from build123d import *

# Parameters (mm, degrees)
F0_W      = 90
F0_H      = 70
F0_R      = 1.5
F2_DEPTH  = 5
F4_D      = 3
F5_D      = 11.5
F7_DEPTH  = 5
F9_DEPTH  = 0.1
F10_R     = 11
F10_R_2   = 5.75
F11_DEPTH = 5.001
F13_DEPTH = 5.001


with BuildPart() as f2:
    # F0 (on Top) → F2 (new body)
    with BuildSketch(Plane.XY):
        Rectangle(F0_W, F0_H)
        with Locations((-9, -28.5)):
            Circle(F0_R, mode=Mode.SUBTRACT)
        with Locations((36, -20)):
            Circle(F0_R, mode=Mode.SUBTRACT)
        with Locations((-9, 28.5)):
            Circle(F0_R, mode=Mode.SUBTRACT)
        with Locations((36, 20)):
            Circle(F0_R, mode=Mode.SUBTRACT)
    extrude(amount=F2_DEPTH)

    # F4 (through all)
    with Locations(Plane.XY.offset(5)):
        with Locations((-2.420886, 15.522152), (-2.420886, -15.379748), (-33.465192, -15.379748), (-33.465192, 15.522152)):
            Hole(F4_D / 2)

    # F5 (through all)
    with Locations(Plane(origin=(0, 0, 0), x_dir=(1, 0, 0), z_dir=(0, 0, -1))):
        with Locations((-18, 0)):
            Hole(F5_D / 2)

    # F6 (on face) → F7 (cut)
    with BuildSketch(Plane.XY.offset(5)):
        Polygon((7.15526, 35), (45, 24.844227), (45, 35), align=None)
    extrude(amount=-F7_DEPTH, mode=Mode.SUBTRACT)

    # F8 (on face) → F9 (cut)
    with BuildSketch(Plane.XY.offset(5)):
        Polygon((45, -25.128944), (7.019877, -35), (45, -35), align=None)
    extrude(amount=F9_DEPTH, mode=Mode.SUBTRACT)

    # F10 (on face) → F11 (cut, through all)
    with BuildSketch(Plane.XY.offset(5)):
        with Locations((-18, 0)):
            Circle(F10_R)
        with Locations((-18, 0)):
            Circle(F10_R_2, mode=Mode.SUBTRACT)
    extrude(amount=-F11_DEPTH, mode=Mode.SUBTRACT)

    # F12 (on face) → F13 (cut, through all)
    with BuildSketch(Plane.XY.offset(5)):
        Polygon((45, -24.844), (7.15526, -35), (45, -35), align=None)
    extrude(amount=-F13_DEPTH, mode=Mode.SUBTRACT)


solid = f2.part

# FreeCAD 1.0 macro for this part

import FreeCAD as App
import Part
import Sketcher


def add_polygon(sketch, points):
    """Adds a closed chain of lines whose ends are joined by coincident constraints."""
    first, n = sketch.GeometryCount, len(points)
    for a, b in zip(points, points[1:] + points[:1]):
        sketch.addGeometry(Part.LineSegment(App.Vector(*a, 0), App.Vector(*b, 0)), False)
    for i in range(n):
        sketch.addConstraint(Sketcher.Constraint("Coincident", first + i, 2, first + (i + 1) % n, 1))

doc = App.newDocument("Part")
params = doc.addObject("Spreadsheet::Sheet", "Params")
for row, (alias, value) in enumerate([
    ("sketch1_diameter", "3 mm"),
    ("sketch1_width", "90 mm"),
    ("sketch1_height", "70 mm"),
    ("pad1_length", "5 mm"),
    ("sketch2_diameter", "3 mm"),
    ("hole_diameter", "3 mm"),
    ("sketch3_diameter", "11.5 mm"),
    ("hole2_diameter", "11.5 mm"),
    ("pocket1_length", "5 mm"),
    ("pocket2_length", "0.1 mm"),
    ("sketch6_diameter", "22 mm"),
    ("sketch6_diameter2", "11.5 mm"),
], start=1):
    params.set(f"A{row}", alias)
    params.set(f"B{row}", "=" + value)
    params.setAlias(f"B{row}", alias)

body = doc.addObject("PartDesign::Body", "Body")

# Sketch on XY plane
sketch1 = doc.addObject("Sketcher::SketchObject", "Sketch")
body.addObject(sketch1)
sketch1.AttachmentSupport = (doc.XY_Plane, [""])
sketch1.MapMode = "FlatFace"
add_polygon(sketch1, [(-45, 35), (-45, -35), (45, -35), (45, 35)])  # lines 0-3
sketch1.addGeometry(Part.Circle(App.Vector(-9, -28.5, 0), App.Vector(0, 0, 1), 1.5), False)  # 4
sketch1.addGeometry(Part.Circle(App.Vector(36, -20, 0), App.Vector(0, 0, 1), 1.5), False)  # 5
sketch1.addGeometry(Part.Circle(App.Vector(-9, 28.5, 0), App.Vector(0, 0, 1), 1.5), False)  # 6
sketch1.addGeometry(Part.Circle(App.Vector(36, 20, 0), App.Vector(0, 0, 1), 1.5), False)  # 7
sketch1.addConstraint([
    Sketcher.Constraint("Vertical", 0),
    Sketcher.Constraint("Horizontal", 1),
    Sketcher.Constraint("Vertical", 2),
    Sketcher.Constraint("Horizontal", 3),
    Sketcher.Constraint("Equal", 4, 5),
    Sketcher.Constraint("Equal", 5, 6),
    Sketcher.Constraint("Equal", 6, 7),
    Sketcher.Constraint("Symmetric", 0, 2, 2, 2, -1, 1),
    Sketcher.Constraint("Symmetric", 4, 3, 6, 3, -1),
    Sketcher.Constraint("Symmetric", 5, 3, 7, 3, -1),
    Sketcher.Constraint("Diameter", 4, 3.0),
    Sketcher.Constraint("DistanceX", 1, 1, 1, 2, 90.0),
    Sketcher.Constraint("DistanceY", 0, 2, 0, 1, 70.0),
    Sketcher.Constraint("DistanceX", 4, 3, -1, 1, 9.0),
    Sketcher.Constraint("DistanceX", -1, 1, 5, 3, 36.0),
    Sketcher.Constraint("DistanceY", 5, 3, -1, 1, 20.0),
    Sketcher.Constraint("DistanceY", 4, 3, 6, 3, 57.0),
])
sketch1.setExpression("Constraints[14]", "Params.sketch1_diameter")
sketch1.setExpression("Constraints[15]", "Params.sketch1_width")
sketch1.setExpression("Constraints[16]", "Params.sketch1_height")
pad1 = doc.addObject("PartDesign::Pad", "Pad")
body.addObject(pad1)
pad1.Profile = sketch1
pad1.setExpression("Length", "Params.pad1_length")

# Sketch on XY plane
sketch2 = doc.addObject("Sketcher::SketchObject", "Sketch001")
body.addObject(sketch2)
sketch2.AttachmentSupport = (doc.XY_Plane, [""])
sketch2.MapMode = "FlatFace"
sketch2.AttachmentOffset = App.Placement(App.Vector(0, 0, 5), App.Rotation())
sketch2.addGeometry([
    Part.Circle(App.Vector(-2.4, 15.5, 0), App.Vector(0, 0, 1), 1.5),
    Part.Circle(App.Vector(-2.4, -15.4, 0), App.Vector(0, 0, 1), 1.5),
    Part.Circle(App.Vector(-33.5, -15.4, 0), App.Vector(0, 0, 1), 1.5),
    Part.Circle(App.Vector(-33.5, 15.5, 0), App.Vector(0, 0, 1), 1.5),
], False)
sketch2.addConstraint([
    Sketcher.Constraint("Equal", 0, 1),
    Sketcher.Constraint("Equal", 1, 2),
    Sketcher.Constraint("Equal", 2, 3),
    Sketcher.Constraint("Horizontal", 1, 3, 2, 3),
    Sketcher.Constraint("Horizontal", 0, 3, 3, 3),
    Sketcher.Constraint("Vertical", 0, 3, 1, 3),
    Sketcher.Constraint("Vertical", 2, 3, 3, 3),
    Sketcher.Constraint("Diameter", 0, 3.0),
    Sketcher.Constraint("DistanceY", 1, 3, 0, 3, 30.9019),
    Sketcher.Constraint("DistanceX", 0, 3, -1, 1, 2.420886),
    Sketcher.Constraint("DistanceY", -1, 1, 0, 3, 15.522152),
    Sketcher.Constraint("DistanceX", 2, 3, -1, 1, 33.465192),
])
sketch2.setExpression("Constraints[7]", "Params.sketch2_diameter")
doc.recompute()
hole = doc.addObject("PartDesign::Hole", "Hole")
body.addObject(hole)
hole.Profile = sketch2
hole.ThreadType = "None"
hole.setExpression("Diameter", "Params.hole_diameter")
hole.DepthType = "ThroughAll"

# Sketch on XY plane
sketch3 = doc.addObject("Sketcher::SketchObject", "Sketch002")
body.addObject(sketch3)
sketch3.AttachmentSupport = (doc.XY_Plane, [""])
sketch3.MapMode = "FlatFace"
sketch3.addGeometry(Part.Circle(App.Vector(-18, 0, 0), App.Vector(0, 0, 1), 6), False)
sketch3.addConstraint([
    Sketcher.Constraint("PointOnObject", 0, 3, -1),
    Sketcher.Constraint("Diameter", 0, 11.5),
    Sketcher.Constraint("DistanceX", 0, 3, -1, 1, 18.0),
])
sketch3.setExpression("Constraints[1]", "Params.sketch3_diameter")
doc.recompute()
hole2 = doc.addObject("PartDesign::Hole", "Hole001")
body.addObject(hole2)
hole2.Profile = sketch3
hole2.ThreadType = "None"
hole2.setExpression("Diameter", "Params.hole2_diameter")
hole2.DepthType = "ThroughAll"
hole2.Reversed = True

# Sketch on XY plane
sketch4 = doc.addObject("Sketcher::SketchObject", "Sketch003")
body.addObject(sketch4)
sketch4.AttachmentSupport = (doc.XY_Plane, [""])
sketch4.MapMode = "FlatFace"
sketch4.AttachmentOffset = App.Placement(App.Vector(0, 0, 5), App.Rotation())
add_polygon(sketch4, [(7, 35), (45, 25), (45, 35)])  # lines 0-2
sketch4.addConstraint([
    Sketcher.Constraint("Vertical", 1),
    Sketcher.Constraint("Horizontal", 2),
    Sketcher.Constraint("DistanceX", -1, 1, 0, 2, 45.0),
    Sketcher.Constraint("DistanceY", -1, 1, 1, 2, 35.0),
    Sketcher.Constraint("DistanceX", 2, 2, 2, 1, 37.84474),
    Sketcher.Constraint("DistanceY", 1, 1, 1, 2, 10.155773),
])
pocket1 = doc.addObject("PartDesign::Pocket", "Pocket")
body.addObject(pocket1)
pocket1.Profile = sketch4
pocket1.setExpression("Length", "Params.pocket1_length")

# Sketch on XY plane
sketch5 = doc.addObject("Sketcher::SketchObject", "Sketch004")
body.addObject(sketch5)
sketch5.AttachmentSupport = (doc.XY_Plane, [""])
sketch5.MapMode = "FlatFace"
sketch5.AttachmentOffset = App.Placement(App.Vector(0, 0, 5), App.Rotation())
add_polygon(sketch5, [(45, -25), (7, -35), (45, -35)])  # lines 0-2
sketch5.addConstraint([
    Sketcher.Constraint("Horizontal", 1),
    Sketcher.Constraint("Vertical", 2),
    Sketcher.Constraint("DistanceY", 0, 2, -1, 1, 35.0),
    Sketcher.Constraint("DistanceX", -1, 1, 1, 2, 45.0),
    Sketcher.Constraint("Distance", 0, 39.24191),
    Sketcher.Constraint("DistanceX", 1, 1, 1, 2, 37.980123),
])
pocket2 = doc.addObject("PartDesign::Pocket", "Pocket001")
body.addObject(pocket2)
pocket2.Profile = sketch5
pocket2.setExpression("Length", "Params.pocket2_length")
pocket2.Reversed = True

# Sketch on XY plane
sketch6 = doc.addObject("Sketcher::SketchObject", "Sketch005")
body.addObject(sketch6)
sketch6.AttachmentSupport = (doc.XY_Plane, [""])
sketch6.MapMode = "FlatFace"
sketch6.AttachmentOffset = App.Placement(App.Vector(0, 0, 5), App.Rotation())
sketch6.addGeometry([
    Part.Circle(App.Vector(-18, 0, 0), App.Vector(0, 0, 1), 11),
    Part.Circle(App.Vector(-18, 0, 0), App.Vector(0, 0, 1), 6),
], False)
sketch6.addConstraint([
    Sketcher.Constraint("Coincident", 1, 3, 0, 3),
    Sketcher.Constraint("PointOnObject", 0, 3, -1),
    Sketcher.Constraint("Diameter", 0, 22.0),
    Sketcher.Constraint("Diameter", 1, 11.5),
    Sketcher.Constraint("DistanceX", 0, 3, -1, 1, 18.0),
])
sketch6.setExpression("Constraints[2]", "Params.sketch6_diameter")
sketch6.setExpression("Constraints[3]", "Params.sketch6_diameter2")
pocket3 = doc.addObject("PartDesign::Pocket", "Pocket002")
body.addObject(pocket3)
pocket3.Profile = sketch6
pocket3.Type = "ThroughAll"

# Sketch on XY plane
sketch7 = doc.addObject("Sketcher::SketchObject", "Sketch006")
body.addObject(sketch7)
sketch7.AttachmentSupport = (doc.XY_Plane, [""])
sketch7.MapMode = "FlatFace"
sketch7.AttachmentOffset = App.Placement(App.Vector(0, 0, 5), App.Rotation())
add_polygon(sketch7, [(45, -25), (7, -35), (45, -35)])  # lines 0-2
sketch7.addConstraint([
    Sketcher.Constraint("Horizontal", 1),
    Sketcher.Constraint("Vertical", 2),
    Sketcher.Constraint("DistanceY", 0, 2, -1, 1, 35.0),
    Sketcher.Constraint("DistanceX", -1, 1, 1, 2, 45.0),
    Sketcher.Constraint("DistanceY", 2, 1, 2, 2, 10.156),
    Sketcher.Constraint("DistanceX", 1, 1, 1, 2, 37.84474),
])
pocket4 = doc.addObject("PartDesign::Pocket", "Pocket003")
body.addObject(pocket4)
pocket4.Profile = sketch7
pocket4.Type = "ThroughAll"

doc.recompute()
